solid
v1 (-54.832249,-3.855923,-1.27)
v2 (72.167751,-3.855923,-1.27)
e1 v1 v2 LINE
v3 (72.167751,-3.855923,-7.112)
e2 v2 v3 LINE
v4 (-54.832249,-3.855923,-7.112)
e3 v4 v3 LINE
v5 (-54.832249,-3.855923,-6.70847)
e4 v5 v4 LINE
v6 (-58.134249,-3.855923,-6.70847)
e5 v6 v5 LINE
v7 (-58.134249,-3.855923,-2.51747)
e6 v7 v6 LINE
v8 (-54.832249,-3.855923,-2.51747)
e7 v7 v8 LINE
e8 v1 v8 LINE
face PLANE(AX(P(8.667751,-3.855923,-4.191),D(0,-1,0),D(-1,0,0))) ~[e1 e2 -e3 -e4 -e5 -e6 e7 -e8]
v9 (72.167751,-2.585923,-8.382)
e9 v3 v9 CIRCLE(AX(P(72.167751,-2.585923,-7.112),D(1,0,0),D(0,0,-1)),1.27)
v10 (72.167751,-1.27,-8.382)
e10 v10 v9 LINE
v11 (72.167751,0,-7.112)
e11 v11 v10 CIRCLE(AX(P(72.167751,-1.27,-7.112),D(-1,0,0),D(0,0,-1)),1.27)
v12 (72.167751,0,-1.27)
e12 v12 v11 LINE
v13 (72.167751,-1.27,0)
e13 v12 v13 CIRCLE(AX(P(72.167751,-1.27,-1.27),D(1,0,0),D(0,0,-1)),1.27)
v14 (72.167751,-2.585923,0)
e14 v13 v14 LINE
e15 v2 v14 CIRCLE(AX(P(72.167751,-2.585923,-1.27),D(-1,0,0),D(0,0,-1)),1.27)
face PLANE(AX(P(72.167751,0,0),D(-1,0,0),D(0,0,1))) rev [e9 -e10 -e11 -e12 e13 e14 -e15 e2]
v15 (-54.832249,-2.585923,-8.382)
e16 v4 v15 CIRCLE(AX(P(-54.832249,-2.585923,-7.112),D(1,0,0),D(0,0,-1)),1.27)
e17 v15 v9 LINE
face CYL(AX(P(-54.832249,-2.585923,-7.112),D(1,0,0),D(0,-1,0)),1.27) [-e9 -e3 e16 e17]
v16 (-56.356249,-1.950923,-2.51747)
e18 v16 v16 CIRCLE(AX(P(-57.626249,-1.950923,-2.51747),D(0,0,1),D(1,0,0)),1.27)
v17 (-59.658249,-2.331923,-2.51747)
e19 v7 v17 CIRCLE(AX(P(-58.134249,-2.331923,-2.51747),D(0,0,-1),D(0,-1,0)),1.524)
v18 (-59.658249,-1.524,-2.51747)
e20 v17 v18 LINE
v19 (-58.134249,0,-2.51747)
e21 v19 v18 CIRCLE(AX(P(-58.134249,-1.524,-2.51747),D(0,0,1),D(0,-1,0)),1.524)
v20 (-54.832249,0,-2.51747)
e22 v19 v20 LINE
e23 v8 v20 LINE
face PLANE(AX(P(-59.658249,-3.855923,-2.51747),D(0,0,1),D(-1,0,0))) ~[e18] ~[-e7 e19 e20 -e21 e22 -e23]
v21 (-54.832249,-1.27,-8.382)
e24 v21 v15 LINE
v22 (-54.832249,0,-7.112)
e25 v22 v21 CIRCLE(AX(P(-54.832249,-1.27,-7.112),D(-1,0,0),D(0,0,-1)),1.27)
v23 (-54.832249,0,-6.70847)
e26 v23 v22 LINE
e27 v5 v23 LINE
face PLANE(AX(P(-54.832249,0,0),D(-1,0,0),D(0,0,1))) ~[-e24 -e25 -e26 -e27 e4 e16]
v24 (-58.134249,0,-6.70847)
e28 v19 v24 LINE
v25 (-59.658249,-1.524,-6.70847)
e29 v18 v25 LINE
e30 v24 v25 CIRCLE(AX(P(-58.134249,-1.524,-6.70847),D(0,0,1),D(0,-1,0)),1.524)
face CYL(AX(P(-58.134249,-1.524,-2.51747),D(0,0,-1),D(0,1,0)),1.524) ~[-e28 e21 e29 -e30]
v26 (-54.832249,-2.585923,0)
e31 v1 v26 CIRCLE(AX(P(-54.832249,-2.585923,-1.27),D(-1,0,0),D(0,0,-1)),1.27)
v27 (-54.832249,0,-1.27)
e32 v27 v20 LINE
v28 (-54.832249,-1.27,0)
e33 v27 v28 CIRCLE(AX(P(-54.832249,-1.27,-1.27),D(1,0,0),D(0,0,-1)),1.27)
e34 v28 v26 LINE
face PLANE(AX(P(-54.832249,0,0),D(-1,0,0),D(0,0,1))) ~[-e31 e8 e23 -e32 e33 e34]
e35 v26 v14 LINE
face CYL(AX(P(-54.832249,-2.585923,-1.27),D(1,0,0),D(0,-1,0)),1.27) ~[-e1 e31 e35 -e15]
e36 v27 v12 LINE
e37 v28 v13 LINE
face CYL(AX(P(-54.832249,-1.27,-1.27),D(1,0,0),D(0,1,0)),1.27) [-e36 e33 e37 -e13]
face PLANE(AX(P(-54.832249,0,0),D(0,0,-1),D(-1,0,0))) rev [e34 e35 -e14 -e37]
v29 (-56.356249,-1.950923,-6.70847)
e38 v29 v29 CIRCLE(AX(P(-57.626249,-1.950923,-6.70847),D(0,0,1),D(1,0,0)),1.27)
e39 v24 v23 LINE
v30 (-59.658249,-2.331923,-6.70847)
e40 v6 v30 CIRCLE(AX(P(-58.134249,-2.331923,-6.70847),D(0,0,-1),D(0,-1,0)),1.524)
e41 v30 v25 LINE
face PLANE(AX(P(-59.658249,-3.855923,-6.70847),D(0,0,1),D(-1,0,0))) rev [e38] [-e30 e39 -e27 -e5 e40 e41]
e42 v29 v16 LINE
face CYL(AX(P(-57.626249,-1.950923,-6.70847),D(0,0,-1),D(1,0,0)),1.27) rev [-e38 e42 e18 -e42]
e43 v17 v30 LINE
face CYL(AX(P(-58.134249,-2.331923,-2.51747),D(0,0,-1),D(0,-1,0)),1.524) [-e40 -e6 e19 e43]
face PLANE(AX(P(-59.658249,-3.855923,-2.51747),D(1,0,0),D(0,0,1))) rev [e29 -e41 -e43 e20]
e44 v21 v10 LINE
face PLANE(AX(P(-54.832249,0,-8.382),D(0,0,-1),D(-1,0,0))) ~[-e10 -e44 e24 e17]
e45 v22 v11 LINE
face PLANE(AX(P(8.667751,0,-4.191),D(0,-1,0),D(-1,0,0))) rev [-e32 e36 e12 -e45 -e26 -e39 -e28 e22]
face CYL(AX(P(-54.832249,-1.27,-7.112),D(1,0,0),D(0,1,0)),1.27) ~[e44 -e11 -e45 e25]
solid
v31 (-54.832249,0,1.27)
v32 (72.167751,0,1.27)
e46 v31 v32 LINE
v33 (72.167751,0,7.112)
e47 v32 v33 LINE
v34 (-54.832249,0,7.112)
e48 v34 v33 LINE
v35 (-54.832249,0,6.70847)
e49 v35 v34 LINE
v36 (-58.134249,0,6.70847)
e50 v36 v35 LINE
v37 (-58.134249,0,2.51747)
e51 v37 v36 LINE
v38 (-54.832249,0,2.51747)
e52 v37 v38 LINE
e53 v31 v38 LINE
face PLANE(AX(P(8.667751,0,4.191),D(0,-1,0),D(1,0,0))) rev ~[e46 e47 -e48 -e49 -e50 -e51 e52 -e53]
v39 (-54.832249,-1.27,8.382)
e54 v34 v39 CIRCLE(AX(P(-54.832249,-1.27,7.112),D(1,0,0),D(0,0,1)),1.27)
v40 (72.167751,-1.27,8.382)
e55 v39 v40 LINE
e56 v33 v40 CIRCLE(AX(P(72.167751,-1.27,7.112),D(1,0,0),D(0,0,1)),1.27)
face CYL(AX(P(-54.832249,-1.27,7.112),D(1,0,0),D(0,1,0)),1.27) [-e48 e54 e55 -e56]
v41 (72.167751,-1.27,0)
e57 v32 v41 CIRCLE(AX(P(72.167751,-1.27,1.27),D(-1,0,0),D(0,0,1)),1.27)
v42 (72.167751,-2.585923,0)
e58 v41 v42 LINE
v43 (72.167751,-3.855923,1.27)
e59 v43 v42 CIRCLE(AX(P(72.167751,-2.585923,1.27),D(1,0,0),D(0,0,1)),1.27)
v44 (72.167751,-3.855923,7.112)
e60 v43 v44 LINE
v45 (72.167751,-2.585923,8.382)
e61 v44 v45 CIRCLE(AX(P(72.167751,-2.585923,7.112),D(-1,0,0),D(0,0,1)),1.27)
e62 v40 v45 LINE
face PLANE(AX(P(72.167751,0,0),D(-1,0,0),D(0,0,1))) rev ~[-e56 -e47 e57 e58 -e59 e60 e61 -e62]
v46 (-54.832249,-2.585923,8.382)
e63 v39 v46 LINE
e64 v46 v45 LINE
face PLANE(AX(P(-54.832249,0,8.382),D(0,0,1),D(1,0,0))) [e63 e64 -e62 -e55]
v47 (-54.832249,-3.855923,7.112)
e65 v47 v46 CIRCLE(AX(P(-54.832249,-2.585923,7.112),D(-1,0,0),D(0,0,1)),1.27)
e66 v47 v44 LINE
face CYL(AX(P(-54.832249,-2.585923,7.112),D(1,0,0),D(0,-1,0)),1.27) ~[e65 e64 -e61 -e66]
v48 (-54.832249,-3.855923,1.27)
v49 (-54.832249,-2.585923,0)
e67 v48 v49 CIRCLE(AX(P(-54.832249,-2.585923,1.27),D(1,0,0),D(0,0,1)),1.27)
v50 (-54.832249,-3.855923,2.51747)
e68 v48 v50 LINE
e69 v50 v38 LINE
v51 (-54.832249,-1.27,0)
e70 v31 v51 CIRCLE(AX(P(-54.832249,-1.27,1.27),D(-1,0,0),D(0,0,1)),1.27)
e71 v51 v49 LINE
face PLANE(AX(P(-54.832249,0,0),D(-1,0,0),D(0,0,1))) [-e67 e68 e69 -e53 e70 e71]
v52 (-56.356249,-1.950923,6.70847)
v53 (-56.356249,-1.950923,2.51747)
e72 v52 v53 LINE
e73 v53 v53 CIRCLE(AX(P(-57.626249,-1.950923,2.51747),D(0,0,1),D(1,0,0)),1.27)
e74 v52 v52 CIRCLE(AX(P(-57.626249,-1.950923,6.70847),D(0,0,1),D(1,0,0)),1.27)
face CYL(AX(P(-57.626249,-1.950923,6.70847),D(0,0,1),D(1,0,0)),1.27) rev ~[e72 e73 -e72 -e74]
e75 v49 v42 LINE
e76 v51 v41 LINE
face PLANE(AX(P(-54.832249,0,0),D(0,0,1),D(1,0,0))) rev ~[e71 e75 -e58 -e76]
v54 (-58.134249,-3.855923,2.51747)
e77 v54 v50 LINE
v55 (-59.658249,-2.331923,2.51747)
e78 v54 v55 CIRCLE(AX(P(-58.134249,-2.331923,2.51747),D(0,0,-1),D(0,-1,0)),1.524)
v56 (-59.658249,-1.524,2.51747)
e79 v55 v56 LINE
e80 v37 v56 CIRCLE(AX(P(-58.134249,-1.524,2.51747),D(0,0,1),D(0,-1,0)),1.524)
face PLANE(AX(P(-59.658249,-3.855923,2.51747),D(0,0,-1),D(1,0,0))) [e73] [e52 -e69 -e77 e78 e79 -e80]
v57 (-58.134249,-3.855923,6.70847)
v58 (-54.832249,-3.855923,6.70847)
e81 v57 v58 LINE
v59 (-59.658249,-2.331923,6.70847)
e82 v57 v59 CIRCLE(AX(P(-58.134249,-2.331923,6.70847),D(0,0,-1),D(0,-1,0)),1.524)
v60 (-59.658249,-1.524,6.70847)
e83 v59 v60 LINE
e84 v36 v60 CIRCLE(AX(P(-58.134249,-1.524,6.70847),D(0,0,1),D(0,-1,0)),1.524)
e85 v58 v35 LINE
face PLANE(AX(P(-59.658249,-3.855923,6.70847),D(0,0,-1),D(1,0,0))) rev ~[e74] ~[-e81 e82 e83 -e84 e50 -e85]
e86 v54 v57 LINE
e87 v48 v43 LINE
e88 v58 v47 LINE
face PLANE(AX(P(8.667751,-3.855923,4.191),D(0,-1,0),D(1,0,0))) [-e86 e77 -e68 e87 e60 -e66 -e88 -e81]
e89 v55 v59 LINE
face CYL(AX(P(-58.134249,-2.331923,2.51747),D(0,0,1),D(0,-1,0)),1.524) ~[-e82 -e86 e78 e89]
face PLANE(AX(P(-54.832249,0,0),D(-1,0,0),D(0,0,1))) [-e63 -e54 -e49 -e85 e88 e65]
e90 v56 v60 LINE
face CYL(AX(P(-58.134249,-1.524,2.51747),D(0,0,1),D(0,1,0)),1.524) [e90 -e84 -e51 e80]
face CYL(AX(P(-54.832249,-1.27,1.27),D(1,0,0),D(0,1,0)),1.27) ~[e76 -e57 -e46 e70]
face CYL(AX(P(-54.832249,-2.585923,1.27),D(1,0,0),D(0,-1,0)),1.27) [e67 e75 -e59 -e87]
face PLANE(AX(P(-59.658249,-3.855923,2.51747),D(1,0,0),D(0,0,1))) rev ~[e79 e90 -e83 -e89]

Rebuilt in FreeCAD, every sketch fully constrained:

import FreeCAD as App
import Part
import Sketcher
Q = App.Units.Quantity


def edges_at(feature, points):
    """Names of the edges that pass closest to the given points."""
    edges = feature.Shape.Edges
    near = lambda p: min(range(len(edges)), key=lambda i: edges[i].distToShape(Part.Vertex(*p))[0])
    return sorted({f"Edge{near(p) + 1}" for p in points})


def add_polygon(sketch, points):
    """Adds a closed chain of lines whose ends are joined by coincident constraints."""
    first, n = sketch.GeometryCount, len(points)
    for a, b in zip(points, points[1:] + points[:1]):
        sketch.addGeometry(Part.LineSegment(App.Vector(*a, 0), App.Vector(*b, 0)), False)
    for i in range(n):
        sketch.addConstraint(Sketcher.Constraint("Coincident", first + i, 2, first + (i + 1) % n, 1))

doc = App.newDocument("Part")
body = doc.addObject("PartDesign::Body", "Body")

# Sketch on XZ plane
sketch1 = body.newObject("Sketcher::SketchObject", "Sketch")
sketch1.AttachmentSupport = (doc.getObject("XZ_Plane"), [""])
sketch1.MapMode = "FlatFace"
add_polygon(sketch1, [(-55, 8), (-55, 0), (72, 0), (72, 8)])  # lines 0-3
sketch1.addConstraint([
    Sketcher.Constraint("Vertical", 0),
    Sketcher.Constraint("Horizontal", 1),
    Sketcher.Constraint("Vertical", 2),
    Sketcher.Constraint("Horizontal", 3),
    Sketcher.Constraint("PointOnObject", 0, 2, -1),
    Sketcher.Constraint("DistanceX", 1, 1, 1, 2, Q("5 in")),
    Sketcher.Constraint("DistanceY", 0, 2, 0, 1, Q("0.33 in")),
    Sketcher.Constraint("DistanceX", 0, 2, -1, 1, Q("54.832249 mm")),
])
pad1 = body.newObject("PartDesign::Pad", "Pad")
pad1.Profile = sketch1
pad1.Length = 3.855923

# Sketch on XZ plane
sketch2 = body.newObject("Sketcher::SketchObject", "Sketch001")
sketch2.AttachmentSupport = (doc.getObject("XZ_Plane"), [""])
sketch2.MapMode = "FlatFace"
sketch2.AttachmentOffset = App.Placement(App.Vector(0, 0, 3.855923), App.Rotation())
add_polygon(sketch2, [(-59.7, 6.7), (-59.7, 2.5), (-54.8, 2.5), (-54.8, 6.7)])  # lines 0-3
sketch2.addConstraint([
    Sketcher.Constraint("Vertical", 0),
    Sketcher.Constraint("Horizontal", 1),
    Sketcher.Constraint("Vertical", 2),
    Sketcher.Constraint("Horizontal", 3),
    Sketcher.Constraint("DistanceX", 1, 1, 1, 2, Q("0.19 in")),
    Sketcher.Constraint("DistanceY", 0, 2, 0, 1, Q("0.165 in")),
    Sketcher.Constraint("DistanceX", 0, 2, -1, 1, Q("59.658249 mm")),
    Sketcher.Constraint("DistanceY", -1, 1, 0, 2, Q("2.51747 mm")),
])
pad2 = body.newObject("PartDesign::Pad", "Pad001")
pad2.Profile = sketch2
pad2.Length = 3.855923
pad2.Reversed = True

# Sketch on XY plane
sketch3 = body.newObject("Sketcher::SketchObject", "Sketch002")
sketch3.AttachmentSupport = (doc.getObject("XY_Plane"), [""])
sketch3.MapMode = "FlatFace"
sketch3.AttachmentOffset = App.Placement(App.Vector(0, 0, 6.70847), App.Rotation())
sketch3.addGeometry(Part.Circle(App.Vector(-57.6, -2, 0), App.Vector(0, 0, 1), 1.3), False)
sketch3.addConstraint([
    Sketcher.Constraint("Diameter", 0, Q("0.1 in")),
    Sketcher.Constraint("DistanceX", 0, 3, -1, 1, Q("57.626249 mm")),
    Sketcher.Constraint("DistanceY", 0, 3, -1, 1, Q("1.950923 mm")),
])
pocket1 = body.newObject("PartDesign::Pocket", "Pocket")
pocket1.Profile = sketch3
pocket1.Type = "ThroughAll"
doc.recompute()

fillet = body.newObject("PartDesign::Fillet", "Fillet")
fillet.Base = (pocket1, edges_at(pocket1, [
    (8.668, -3.856, 8.382),
    (8.668, 0, 8.382),
    (8.668, -3.856, 0),
    (8.668, 0, 0),
]))
fillet.Radius = Q("0.05 in")
doc.recompute()

fillet2 = body.newObject("PartDesign::Fillet", "Fillet001")
fillet2.Base = (fillet, edges_at(fillet, [(-59.658, -3.856, 4.613), (-59.658, 0, 4.613)]))
fillet2.Radius = Q("0.06 in")
body2 = doc.addObject("PartDesign::Body", "Body001")
doc.recompute()

mirroring = doc.addObject("Part::Mirroring", "Mirroring")
mirroring.Source = body
mirroring.Base = App.Vector(0, 0, 0)
mirroring.Normal = App.Vector(0, 0, 1)
body2.BaseFeature = mirroring
doc.recompute()
mirroring.Visibility = False

doc.recompute()
